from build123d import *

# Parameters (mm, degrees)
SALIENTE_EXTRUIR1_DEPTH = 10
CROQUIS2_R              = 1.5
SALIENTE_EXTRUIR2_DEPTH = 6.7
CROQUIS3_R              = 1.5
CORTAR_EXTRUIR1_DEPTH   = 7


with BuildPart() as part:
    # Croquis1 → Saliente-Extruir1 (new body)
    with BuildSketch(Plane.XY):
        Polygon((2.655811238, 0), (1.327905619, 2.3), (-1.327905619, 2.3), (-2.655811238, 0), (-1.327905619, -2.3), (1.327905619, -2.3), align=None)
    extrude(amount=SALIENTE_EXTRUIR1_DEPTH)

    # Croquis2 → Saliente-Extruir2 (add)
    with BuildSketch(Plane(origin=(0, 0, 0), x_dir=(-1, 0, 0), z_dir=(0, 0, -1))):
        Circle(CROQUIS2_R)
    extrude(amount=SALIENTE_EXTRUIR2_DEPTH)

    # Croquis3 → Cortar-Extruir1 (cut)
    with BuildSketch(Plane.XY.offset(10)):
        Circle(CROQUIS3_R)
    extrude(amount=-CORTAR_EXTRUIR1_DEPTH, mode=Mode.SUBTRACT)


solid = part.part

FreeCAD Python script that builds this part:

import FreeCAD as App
import Part
import Sketcher

V = App.Vector
Q = App.Units.Quantity


def add_polygon(sketch, points):
    """Adds a closed chain of lines whose ends are joined by coincident constraints."""
    first, n = sketch.GeometryCount, len(points)
    for a, b in zip(points, points[1:] + points[:1]):
        sketch.addGeometry(Part.LineSegment(App.Vector(*a, 0), App.Vector(*b, 0)), False)
    for i in range(n):
        sketch.addConstraint(Sketcher.Constraint("Coincident", first + i, 2, first + (i + 1) % n, 1))

doc = App.newDocument("Part")
body = doc.addObject("PartDesign::Body", "Body")

# Sketch on XY plane
sketch1 = body.newObject("Sketcher::SketchObject", "Sketch")
sketch1.AttachmentSupport = (doc.getObject("XY_Plane"), [""])
sketch1.MapMode = "FlatFace"
add_polygon(sketch1, [(2.7, 0), (1.3, 2.3), (-1.3, 2.3), (-2.7, 0), (-1.3, -2.3), (1.3, -2.3)])  # lines 0-5
sketch1.addConstraint([
    Sketcher.Constraint("Horizontal", 1),
    Sketcher.Constraint("Horizontal", 4),
    Sketcher.Constraint("Symmetric", 0, 2, 3, 2, -1, 1),
    Sketcher.Constraint("Symmetric", 2, 2, 5, 2, -1, 1),
    Sketcher.Constraint("PointOnObject", 2, 2, -1),
    Sketcher.Constraint("Parallel", 2, 5),
    Sketcher.Constraint("Vertical", 1, 2, 3, 2),
    Sketcher.Constraint("Angle", 0, Q("120 deg")),
    Sketcher.Constraint("DistanceY", -1, 1, 0, 2, 2.3),
    Sketcher.Constraint("DistanceX", 1, 2, 1, 1, 2.655811),
])
pad1 = body.newObject("PartDesign::Pad", "Pad")
pad1.Profile = sketch1
pad1.Length = 10

# Sketch on XY plane
sketch2 = body.newObject("Sketcher::SketchObject", "Sketch001")
sketch2.AttachmentSupport = (doc.getObject("XY_Plane"), [""])
sketch2.MapMode = "FlatFace"
sketch2.addGeometry(Part.Circle(V(0, 0, 0), V(0, 0, 1), 1.5), False)
sketch2.addConstraint([
    Sketcher.Constraint("Coincident", 0, 3, -1, 1),
    Sketcher.Constraint("Diameter", 0, 3.0),
])
pad2 = body.newObject("PartDesign::Pad", "Pad001")
pad2.Profile = sketch2
pad2.Length = 6.7
pad2.Reversed = True

# Sketch on XY plane
sketch3 = body.newObject("Sketcher::SketchObject", "Sketch002")
sketch3.AttachmentSupport = (doc.getObject("XY_Plane"), [""])
sketch3.MapMode = "FlatFace"
sketch3.AttachmentOffset = App.Placement(V(0, 0, 10), App.Rotation())
sketch3.addGeometry(Part.Circle(V(0, 0, 0), V(0, 0, 1), 1.5), False)
sketch3.addConstraint([
    Sketcher.Constraint("Coincident", 0, 3, -1, 1),
    Sketcher.Constraint("Diameter", 0, 3.0),
])
pocket1 = body.newObject("PartDesign::Pocket", "Pocket")
pocket1.Profile = sketch3
pocket1.Length = 7

doc.recompute()
